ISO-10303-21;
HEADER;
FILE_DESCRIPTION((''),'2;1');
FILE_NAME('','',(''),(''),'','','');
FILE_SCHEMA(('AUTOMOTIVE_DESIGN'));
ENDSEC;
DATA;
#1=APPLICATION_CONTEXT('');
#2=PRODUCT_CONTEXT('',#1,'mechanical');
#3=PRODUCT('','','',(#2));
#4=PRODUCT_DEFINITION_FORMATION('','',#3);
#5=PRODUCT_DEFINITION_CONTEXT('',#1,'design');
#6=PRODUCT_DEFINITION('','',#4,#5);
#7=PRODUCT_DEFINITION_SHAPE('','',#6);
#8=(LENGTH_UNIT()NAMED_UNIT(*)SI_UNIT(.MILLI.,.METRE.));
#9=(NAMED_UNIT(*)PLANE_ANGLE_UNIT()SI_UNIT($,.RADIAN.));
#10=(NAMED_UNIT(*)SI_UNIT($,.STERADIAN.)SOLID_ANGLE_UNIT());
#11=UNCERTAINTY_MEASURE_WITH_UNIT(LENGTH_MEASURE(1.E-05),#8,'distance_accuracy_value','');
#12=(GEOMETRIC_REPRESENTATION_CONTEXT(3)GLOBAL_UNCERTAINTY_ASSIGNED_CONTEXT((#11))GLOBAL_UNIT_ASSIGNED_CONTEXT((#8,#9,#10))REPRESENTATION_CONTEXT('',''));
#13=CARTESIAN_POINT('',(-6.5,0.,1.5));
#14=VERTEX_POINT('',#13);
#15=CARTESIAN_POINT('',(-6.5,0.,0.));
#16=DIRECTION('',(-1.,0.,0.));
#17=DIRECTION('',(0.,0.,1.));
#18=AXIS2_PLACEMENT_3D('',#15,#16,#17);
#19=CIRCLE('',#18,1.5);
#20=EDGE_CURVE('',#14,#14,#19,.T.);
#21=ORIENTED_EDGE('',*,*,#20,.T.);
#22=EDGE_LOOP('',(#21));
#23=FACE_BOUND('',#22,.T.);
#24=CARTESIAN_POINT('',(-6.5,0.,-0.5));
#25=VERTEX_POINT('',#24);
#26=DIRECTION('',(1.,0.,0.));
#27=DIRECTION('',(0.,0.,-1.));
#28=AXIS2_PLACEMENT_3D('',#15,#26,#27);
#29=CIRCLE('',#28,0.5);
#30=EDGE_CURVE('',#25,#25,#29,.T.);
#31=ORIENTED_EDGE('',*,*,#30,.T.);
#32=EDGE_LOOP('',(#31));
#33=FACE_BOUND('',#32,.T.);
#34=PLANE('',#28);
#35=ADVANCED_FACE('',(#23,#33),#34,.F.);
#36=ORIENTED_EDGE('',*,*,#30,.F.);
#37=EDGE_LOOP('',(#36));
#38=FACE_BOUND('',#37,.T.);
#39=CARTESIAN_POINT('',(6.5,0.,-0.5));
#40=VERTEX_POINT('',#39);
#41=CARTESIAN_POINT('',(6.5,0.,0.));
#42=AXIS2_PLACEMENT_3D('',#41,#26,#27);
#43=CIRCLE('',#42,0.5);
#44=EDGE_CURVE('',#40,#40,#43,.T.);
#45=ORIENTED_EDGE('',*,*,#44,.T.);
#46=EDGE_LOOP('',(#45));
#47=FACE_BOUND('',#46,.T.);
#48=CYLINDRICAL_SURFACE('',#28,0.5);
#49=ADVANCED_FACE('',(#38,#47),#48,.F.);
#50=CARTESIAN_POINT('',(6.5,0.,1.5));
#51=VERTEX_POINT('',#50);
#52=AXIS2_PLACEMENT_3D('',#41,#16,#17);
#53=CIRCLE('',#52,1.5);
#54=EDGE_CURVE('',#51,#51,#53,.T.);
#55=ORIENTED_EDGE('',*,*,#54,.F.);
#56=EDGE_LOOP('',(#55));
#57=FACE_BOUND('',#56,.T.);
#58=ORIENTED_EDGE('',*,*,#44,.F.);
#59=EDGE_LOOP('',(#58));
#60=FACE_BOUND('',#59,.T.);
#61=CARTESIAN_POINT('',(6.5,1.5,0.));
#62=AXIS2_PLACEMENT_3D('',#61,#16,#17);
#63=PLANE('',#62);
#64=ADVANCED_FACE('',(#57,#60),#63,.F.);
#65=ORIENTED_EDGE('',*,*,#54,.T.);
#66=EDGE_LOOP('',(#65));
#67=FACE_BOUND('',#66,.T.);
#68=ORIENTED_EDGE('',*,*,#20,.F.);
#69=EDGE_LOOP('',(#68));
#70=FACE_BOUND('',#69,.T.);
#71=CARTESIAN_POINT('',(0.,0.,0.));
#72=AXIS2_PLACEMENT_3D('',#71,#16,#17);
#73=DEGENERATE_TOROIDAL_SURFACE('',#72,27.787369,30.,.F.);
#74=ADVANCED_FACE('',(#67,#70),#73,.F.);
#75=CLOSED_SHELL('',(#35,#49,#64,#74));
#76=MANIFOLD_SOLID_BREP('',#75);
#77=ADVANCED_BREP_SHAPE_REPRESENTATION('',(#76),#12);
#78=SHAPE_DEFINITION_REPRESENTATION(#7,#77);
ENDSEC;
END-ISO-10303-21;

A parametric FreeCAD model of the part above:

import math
import FreeCAD as App
import Part
import Sketcher
from FreeCAD import Vector

doc = App.newDocument("Part")
body = doc.addObject("PartDesign::Body", "Body")

# Sketch on XY plane
sketch1 = body.newObject("Sketcher::SketchObject", "Sketch")
sketch1.AttachmentSupport = (doc.getObject("XY_Plane"), [""])
sketch1.MapMode = "FlatFace"
sketch1.addGeometry(Part.LineSegment(Vector(-6.5, 1.5, 0), Vector(-6.5, 0, 0)), False)
sketch1.addGeometry(Part.LineSegment(Vector(-6.5, 0, 0), Vector(6.5, 0, 0)), False)
sketch1.addGeometry(Part.LineSegment(Vector(6.5, 0, 0), Vector(6.5, 1.5, 0)), False)
sketch1.addGeometry(Part.ArcOfCircle(Part.Circle(Vector(0, -27.8, 0), Vector(0, 0, 1), 30), math.radians(77), math.radians(103)), False)
sketch1.addConstraint(Sketcher.Constraint("Coincident", 0, 2, 1, 1))
sketch1.addConstraint(Sketcher.Constraint("Coincident", 1, 2, 2, 1))
sketch1.addConstraint(Sketcher.Constraint("Coincident", 2, 2, 3, 1))
sketch1.addConstraint(Sketcher.Constraint("Coincident", 3, 2, 0, 1))
sketch1.addConstraint(Sketcher.Constraint("Vertical", 0))
sketch1.addConstraint(Sketcher.Constraint("Horizontal", 1))
sketch1.addConstraint(Sketcher.Constraint("Vertical", 2))
sketch1.addConstraint(Sketcher.Constraint("Symmetric", 0, 2, 1, 2, -1, 1))
sketch1.addConstraint(Sketcher.Constraint("PointOnObject", 3, 3, -2))
sketch1.addConstraint(Sketcher.Constraint("Radius", 3, 30.0))
sketch1.addConstraint(Sketcher.Constraint("DistanceX", 1, 1, 1, 2, 13.0))
sketch1.addConstraint(Sketcher.Constraint("DistanceY", 0, 2, 0, 1, 1.5))
revolution = body.newObject("PartDesign::Revolution", "Revolution")
revolution.Profile = sketch1
revolution.ReferenceAxis = (sketch1, ["H_Axis"])
revolution.Angle = 360

# Sketch on YZ plane
sketch2 = body.newObject("Sketcher::SketchObject", "Sketch001")
sketch2.AttachmentSupport = (doc.getObject("YZ_Plane"), [""])
sketch2.MapMode = "FlatFace"
sketch2.addGeometry(Part.Circle(Vector(0, 0, 0), Vector(0, 0, 1), 0.5), False)
sketch2.addConstraint(Sketcher.Constraint("Coincident", 0, 3, -1, 1))
sketch2.addConstraint(Sketcher.Constraint("Diameter", 0, 1.0))
pocket1 = body.newObject("PartDesign::Pocket", "Pocket")
pocket1.Profile = sketch2
pocket1.Type = "ThroughAll"
pocket1.Midplane = True

doc.recompute()
